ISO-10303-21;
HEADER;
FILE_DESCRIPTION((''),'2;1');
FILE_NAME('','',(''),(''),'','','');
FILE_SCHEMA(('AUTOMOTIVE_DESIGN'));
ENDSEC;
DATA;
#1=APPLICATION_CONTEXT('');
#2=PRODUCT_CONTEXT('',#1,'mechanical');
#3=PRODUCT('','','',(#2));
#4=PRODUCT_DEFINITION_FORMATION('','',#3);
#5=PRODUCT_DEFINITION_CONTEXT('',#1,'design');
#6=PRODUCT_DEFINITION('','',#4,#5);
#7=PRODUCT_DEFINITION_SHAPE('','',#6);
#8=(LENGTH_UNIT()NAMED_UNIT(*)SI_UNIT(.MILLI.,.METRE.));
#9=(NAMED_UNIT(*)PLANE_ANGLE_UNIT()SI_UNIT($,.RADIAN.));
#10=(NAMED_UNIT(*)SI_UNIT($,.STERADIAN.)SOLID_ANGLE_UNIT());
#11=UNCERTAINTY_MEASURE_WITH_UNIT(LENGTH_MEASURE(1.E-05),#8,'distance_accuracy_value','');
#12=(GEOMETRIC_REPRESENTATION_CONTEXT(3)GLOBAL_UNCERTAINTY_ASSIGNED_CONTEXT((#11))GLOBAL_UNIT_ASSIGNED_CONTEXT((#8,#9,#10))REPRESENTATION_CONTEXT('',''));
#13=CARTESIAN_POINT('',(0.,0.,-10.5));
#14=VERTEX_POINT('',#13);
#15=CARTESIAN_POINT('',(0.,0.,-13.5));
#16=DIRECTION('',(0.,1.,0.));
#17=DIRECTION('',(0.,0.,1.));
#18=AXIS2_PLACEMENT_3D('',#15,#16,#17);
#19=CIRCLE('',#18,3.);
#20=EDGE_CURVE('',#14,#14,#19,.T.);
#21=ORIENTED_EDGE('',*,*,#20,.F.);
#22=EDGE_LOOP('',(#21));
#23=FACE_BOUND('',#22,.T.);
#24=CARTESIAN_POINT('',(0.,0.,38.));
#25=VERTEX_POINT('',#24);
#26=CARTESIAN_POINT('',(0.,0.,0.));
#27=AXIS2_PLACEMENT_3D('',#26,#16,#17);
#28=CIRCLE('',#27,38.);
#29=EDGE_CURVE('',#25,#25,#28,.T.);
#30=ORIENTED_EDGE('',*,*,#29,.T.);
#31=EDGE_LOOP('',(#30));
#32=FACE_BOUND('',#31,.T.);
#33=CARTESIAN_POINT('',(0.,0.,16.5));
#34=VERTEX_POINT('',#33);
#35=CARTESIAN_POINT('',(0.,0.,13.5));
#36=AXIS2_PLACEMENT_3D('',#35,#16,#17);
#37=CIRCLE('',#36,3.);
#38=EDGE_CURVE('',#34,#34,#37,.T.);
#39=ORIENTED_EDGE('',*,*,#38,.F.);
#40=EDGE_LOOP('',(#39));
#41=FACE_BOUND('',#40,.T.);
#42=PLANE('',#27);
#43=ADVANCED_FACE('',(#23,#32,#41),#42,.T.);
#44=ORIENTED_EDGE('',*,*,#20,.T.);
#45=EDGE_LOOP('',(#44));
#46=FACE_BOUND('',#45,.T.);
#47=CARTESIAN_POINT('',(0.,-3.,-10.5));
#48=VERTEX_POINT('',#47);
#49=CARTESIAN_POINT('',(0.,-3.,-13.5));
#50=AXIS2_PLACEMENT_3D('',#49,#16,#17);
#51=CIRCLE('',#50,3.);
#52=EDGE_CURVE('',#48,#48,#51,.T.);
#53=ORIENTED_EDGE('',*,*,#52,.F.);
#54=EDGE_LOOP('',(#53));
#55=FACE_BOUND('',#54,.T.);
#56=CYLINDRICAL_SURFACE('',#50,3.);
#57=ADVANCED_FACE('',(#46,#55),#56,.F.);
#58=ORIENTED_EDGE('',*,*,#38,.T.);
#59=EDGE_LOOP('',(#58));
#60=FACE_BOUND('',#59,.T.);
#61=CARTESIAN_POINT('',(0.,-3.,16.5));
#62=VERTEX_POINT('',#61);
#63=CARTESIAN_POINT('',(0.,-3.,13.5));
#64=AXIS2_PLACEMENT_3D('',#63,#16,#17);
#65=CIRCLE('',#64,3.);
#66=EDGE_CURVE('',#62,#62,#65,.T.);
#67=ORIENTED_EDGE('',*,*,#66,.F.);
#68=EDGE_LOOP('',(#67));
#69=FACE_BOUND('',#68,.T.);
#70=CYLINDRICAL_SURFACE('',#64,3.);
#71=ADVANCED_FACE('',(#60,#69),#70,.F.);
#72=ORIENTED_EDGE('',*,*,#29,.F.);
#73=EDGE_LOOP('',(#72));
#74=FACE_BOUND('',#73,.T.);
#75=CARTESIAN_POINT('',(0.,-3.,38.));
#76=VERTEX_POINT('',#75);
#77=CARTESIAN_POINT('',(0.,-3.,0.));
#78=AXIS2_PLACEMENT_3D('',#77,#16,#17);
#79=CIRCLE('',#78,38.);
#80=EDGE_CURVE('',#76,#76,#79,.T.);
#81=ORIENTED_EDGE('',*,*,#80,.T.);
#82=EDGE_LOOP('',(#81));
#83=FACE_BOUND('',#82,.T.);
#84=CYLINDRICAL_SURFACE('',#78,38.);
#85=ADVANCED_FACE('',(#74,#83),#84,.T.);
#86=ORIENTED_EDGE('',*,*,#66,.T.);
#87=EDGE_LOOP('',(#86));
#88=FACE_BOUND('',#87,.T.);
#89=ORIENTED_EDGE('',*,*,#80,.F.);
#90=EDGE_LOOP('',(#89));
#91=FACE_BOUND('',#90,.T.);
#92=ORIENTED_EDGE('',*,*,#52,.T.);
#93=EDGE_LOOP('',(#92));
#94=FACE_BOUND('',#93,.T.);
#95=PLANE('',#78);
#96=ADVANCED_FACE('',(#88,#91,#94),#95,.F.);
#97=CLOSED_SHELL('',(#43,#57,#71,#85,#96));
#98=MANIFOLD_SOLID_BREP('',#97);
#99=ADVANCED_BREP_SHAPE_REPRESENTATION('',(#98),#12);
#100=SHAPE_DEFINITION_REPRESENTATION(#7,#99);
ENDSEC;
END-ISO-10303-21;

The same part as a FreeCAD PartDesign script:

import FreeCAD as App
import Part
import Sketcher
from FreeCAD import Vector
Q = App.Units.Quantity

doc = App.newDocument("Part")
body = doc.addObject("PartDesign::Body", "Body")

# Sketch on XZ plane
sketch1 = doc.addObject("Sketcher::SketchObject", "Sketch")
body.addObject(sketch1)
sketch1.AttachmentSupport = (doc.XZ_Plane, [""])
sketch1.MapMode = "FlatFace"
sketch1.addGeometry([
    Part.Circle(Vector(0, 0, 0), Vector(0, 0, 1), 38),
    Part.Circle(Vector(0, -13.5, 0), Vector(0, 0, 1), 3),
    Part.Circle(Vector(0, 13.5, 0), Vector(0, 0, 1), 3),
], False)
sketch1.addConstraint([
    Sketcher.Constraint("Coincident", 0, 3, -1, 1),
    Sketcher.Constraint("Equal", 1, 2),
    Sketcher.Constraint("Symmetric", 1, 3, 2, 3, -1, 1),
    Sketcher.Constraint("PointOnObject", 1, 3, -2),
    Sketcher.Constraint("Diameter", 0, Q("76 mm")),
    Sketcher.Constraint("Diameter", 1, Q("6 mm")),
    Sketcher.Constraint("DistanceY", 1, 3, 2, 3, Q("27 mm")),
])
pad1 = doc.addObject("PartDesign::Pad", "Pad")
body.addObject(pad1)
pad1.Profile = sketch1
pad1.Length = 3

doc.recompute()
